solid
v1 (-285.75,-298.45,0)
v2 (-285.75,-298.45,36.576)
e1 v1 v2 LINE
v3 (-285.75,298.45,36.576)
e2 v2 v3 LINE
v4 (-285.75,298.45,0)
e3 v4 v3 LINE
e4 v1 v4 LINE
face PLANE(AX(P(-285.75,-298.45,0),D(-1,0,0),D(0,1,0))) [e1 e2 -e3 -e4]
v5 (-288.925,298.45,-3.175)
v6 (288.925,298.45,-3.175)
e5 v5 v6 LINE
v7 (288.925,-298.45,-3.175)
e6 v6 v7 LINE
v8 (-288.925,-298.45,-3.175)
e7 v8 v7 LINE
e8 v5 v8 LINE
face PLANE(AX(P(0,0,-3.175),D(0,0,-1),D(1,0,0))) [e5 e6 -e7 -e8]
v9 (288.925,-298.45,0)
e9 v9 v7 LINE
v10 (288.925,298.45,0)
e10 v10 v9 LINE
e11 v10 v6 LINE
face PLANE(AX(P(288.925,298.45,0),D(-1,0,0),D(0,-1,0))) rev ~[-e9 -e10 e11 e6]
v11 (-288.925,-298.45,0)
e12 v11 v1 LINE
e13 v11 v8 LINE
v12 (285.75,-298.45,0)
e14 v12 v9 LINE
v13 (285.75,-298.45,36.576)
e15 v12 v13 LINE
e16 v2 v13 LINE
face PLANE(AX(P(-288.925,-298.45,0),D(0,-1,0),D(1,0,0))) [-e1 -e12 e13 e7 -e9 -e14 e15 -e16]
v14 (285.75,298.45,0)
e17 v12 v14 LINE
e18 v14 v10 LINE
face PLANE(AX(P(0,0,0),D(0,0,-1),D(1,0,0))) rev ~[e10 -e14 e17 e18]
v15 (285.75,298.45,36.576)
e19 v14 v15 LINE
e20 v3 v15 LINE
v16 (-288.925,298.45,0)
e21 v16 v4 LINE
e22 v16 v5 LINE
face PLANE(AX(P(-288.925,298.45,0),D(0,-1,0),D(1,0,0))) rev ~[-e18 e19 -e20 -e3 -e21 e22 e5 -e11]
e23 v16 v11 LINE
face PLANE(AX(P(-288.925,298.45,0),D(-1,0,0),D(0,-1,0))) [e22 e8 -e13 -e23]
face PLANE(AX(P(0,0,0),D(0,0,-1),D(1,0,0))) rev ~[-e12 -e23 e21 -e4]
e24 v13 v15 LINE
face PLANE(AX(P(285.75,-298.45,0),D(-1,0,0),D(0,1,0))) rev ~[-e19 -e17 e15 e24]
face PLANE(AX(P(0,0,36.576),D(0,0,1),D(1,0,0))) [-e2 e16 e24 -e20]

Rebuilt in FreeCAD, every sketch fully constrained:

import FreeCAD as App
import Part
import Sketcher
from FreeCAD import Vector
Q = App.Units.Quantity

doc = App.newDocument("Part")
body = doc.addObject("PartDesign::Body", "Body")

# Sketch on XY plane
sketch1 = body.newObject("Sketcher::SketchObject", "Sketch")
sketch1.AttachmentSupport = (doc.getObject("XY_Plane"), [""])
sketch1.MapMode = "FlatFace"
sketch1.addGeometry(Part.LineSegment(Vector(-286, 298, 0), Vector(-286, -298, 0)), False)
sketch1.addGeometry(Part.LineSegment(Vector(-286, -298, 0), Vector(286, -298, 0)), False)
sketch1.addGeometry(Part.LineSegment(Vector(286, -298, 0), Vector(286, 298, 0)), False)
sketch1.addGeometry(Part.LineSegment(Vector(286, 298, 0), Vector(-286, 298, 0)), False)
sketch1.addConstraint(Sketcher.Constraint("Coincident", 0, 2, 1, 1))
sketch1.addConstraint(Sketcher.Constraint("Coincident", 1, 2, 2, 1))
sketch1.addConstraint(Sketcher.Constraint("Coincident", 2, 2, 3, 1))
sketch1.addConstraint(Sketcher.Constraint("Coincident", 3, 2, 0, 1))
sketch1.addConstraint(Sketcher.Constraint("Vertical", 0))
sketch1.addConstraint(Sketcher.Constraint("Horizontal", 1))
sketch1.addConstraint(Sketcher.Constraint("Vertical", 2))
sketch1.addConstraint(Sketcher.Constraint("Horizontal", 3))
sketch1.addConstraint(Sketcher.Constraint("Symmetric", 0, 2, 2, 2, -1, 1))
sketch1.addConstraint(Sketcher.Constraint("DistanceX", 1, 1, 1, 2, Q("22.5 in")))
sketch1.addConstraint(Sketcher.Constraint("DistanceY", 0, 2, 0, 1, Q("23.5 in")))
pad1 = body.newObject("PartDesign::Pad", "Pad")
pad1.Profile = sketch1
pad1.Length = Q("1.44 in")

# Sketch on XY plane
sketch2 = body.newObject("Sketcher::SketchObject", "Sketch001")
sketch2.AttachmentSupport = (doc.getObject("XY_Plane"), [""])
sketch2.MapMode = "FlatFace"
sketch2.addGeometry(Part.LineSegment(Vector(-289, -298, 0), Vector(-289, 298, 0)), False)
sketch2.addGeometry(Part.LineSegment(Vector(-289, 298, 0), Vector(289, 298, 0)), False)
sketch2.addGeometry(Part.LineSegment(Vector(289, 298, 0), Vector(289, -298, 0)), False)
sketch2.addGeometry(Part.LineSegment(Vector(289, -298, 0), Vector(-289, -298, 0)), False)
sketch2.addConstraint(Sketcher.Constraint("Coincident", 0, 2, 1, 1))
sketch2.addConstraint(Sketcher.Constraint("Coincident", 1, 2, 2, 1))
sketch2.addConstraint(Sketcher.Constraint("Coincident", 2, 2, 3, 1))
sketch2.addConstraint(Sketcher.Constraint("Coincident", 3, 2, 0, 1))
sketch2.addConstraint(Sketcher.Constraint("Vertical", 0))
sketch2.addConstraint(Sketcher.Constraint("Horizontal", 1))
sketch2.addConstraint(Sketcher.Constraint("Vertical", 2))
sketch2.addConstraint(Sketcher.Constraint("Horizontal", 3))
sketch2.addConstraint(Sketcher.Constraint("Symmetric", 0, 2, 2, 2, -1, 1))
sketch2.addConstraint(Sketcher.Constraint("DistanceY", 0, 1, 0, 2, Q("23.5 in")))
sketch2.addConstraint(Sketcher.Constraint("DistanceX", 1, 1, 1, 2, Q("22.75 in")))
pad2 = body.newObject("PartDesign::Pad", "Pad001")
pad2.Profile = sketch2
pad2.Length = Q("0.125 in")
pad2.Reversed = True

doc.recompute()
